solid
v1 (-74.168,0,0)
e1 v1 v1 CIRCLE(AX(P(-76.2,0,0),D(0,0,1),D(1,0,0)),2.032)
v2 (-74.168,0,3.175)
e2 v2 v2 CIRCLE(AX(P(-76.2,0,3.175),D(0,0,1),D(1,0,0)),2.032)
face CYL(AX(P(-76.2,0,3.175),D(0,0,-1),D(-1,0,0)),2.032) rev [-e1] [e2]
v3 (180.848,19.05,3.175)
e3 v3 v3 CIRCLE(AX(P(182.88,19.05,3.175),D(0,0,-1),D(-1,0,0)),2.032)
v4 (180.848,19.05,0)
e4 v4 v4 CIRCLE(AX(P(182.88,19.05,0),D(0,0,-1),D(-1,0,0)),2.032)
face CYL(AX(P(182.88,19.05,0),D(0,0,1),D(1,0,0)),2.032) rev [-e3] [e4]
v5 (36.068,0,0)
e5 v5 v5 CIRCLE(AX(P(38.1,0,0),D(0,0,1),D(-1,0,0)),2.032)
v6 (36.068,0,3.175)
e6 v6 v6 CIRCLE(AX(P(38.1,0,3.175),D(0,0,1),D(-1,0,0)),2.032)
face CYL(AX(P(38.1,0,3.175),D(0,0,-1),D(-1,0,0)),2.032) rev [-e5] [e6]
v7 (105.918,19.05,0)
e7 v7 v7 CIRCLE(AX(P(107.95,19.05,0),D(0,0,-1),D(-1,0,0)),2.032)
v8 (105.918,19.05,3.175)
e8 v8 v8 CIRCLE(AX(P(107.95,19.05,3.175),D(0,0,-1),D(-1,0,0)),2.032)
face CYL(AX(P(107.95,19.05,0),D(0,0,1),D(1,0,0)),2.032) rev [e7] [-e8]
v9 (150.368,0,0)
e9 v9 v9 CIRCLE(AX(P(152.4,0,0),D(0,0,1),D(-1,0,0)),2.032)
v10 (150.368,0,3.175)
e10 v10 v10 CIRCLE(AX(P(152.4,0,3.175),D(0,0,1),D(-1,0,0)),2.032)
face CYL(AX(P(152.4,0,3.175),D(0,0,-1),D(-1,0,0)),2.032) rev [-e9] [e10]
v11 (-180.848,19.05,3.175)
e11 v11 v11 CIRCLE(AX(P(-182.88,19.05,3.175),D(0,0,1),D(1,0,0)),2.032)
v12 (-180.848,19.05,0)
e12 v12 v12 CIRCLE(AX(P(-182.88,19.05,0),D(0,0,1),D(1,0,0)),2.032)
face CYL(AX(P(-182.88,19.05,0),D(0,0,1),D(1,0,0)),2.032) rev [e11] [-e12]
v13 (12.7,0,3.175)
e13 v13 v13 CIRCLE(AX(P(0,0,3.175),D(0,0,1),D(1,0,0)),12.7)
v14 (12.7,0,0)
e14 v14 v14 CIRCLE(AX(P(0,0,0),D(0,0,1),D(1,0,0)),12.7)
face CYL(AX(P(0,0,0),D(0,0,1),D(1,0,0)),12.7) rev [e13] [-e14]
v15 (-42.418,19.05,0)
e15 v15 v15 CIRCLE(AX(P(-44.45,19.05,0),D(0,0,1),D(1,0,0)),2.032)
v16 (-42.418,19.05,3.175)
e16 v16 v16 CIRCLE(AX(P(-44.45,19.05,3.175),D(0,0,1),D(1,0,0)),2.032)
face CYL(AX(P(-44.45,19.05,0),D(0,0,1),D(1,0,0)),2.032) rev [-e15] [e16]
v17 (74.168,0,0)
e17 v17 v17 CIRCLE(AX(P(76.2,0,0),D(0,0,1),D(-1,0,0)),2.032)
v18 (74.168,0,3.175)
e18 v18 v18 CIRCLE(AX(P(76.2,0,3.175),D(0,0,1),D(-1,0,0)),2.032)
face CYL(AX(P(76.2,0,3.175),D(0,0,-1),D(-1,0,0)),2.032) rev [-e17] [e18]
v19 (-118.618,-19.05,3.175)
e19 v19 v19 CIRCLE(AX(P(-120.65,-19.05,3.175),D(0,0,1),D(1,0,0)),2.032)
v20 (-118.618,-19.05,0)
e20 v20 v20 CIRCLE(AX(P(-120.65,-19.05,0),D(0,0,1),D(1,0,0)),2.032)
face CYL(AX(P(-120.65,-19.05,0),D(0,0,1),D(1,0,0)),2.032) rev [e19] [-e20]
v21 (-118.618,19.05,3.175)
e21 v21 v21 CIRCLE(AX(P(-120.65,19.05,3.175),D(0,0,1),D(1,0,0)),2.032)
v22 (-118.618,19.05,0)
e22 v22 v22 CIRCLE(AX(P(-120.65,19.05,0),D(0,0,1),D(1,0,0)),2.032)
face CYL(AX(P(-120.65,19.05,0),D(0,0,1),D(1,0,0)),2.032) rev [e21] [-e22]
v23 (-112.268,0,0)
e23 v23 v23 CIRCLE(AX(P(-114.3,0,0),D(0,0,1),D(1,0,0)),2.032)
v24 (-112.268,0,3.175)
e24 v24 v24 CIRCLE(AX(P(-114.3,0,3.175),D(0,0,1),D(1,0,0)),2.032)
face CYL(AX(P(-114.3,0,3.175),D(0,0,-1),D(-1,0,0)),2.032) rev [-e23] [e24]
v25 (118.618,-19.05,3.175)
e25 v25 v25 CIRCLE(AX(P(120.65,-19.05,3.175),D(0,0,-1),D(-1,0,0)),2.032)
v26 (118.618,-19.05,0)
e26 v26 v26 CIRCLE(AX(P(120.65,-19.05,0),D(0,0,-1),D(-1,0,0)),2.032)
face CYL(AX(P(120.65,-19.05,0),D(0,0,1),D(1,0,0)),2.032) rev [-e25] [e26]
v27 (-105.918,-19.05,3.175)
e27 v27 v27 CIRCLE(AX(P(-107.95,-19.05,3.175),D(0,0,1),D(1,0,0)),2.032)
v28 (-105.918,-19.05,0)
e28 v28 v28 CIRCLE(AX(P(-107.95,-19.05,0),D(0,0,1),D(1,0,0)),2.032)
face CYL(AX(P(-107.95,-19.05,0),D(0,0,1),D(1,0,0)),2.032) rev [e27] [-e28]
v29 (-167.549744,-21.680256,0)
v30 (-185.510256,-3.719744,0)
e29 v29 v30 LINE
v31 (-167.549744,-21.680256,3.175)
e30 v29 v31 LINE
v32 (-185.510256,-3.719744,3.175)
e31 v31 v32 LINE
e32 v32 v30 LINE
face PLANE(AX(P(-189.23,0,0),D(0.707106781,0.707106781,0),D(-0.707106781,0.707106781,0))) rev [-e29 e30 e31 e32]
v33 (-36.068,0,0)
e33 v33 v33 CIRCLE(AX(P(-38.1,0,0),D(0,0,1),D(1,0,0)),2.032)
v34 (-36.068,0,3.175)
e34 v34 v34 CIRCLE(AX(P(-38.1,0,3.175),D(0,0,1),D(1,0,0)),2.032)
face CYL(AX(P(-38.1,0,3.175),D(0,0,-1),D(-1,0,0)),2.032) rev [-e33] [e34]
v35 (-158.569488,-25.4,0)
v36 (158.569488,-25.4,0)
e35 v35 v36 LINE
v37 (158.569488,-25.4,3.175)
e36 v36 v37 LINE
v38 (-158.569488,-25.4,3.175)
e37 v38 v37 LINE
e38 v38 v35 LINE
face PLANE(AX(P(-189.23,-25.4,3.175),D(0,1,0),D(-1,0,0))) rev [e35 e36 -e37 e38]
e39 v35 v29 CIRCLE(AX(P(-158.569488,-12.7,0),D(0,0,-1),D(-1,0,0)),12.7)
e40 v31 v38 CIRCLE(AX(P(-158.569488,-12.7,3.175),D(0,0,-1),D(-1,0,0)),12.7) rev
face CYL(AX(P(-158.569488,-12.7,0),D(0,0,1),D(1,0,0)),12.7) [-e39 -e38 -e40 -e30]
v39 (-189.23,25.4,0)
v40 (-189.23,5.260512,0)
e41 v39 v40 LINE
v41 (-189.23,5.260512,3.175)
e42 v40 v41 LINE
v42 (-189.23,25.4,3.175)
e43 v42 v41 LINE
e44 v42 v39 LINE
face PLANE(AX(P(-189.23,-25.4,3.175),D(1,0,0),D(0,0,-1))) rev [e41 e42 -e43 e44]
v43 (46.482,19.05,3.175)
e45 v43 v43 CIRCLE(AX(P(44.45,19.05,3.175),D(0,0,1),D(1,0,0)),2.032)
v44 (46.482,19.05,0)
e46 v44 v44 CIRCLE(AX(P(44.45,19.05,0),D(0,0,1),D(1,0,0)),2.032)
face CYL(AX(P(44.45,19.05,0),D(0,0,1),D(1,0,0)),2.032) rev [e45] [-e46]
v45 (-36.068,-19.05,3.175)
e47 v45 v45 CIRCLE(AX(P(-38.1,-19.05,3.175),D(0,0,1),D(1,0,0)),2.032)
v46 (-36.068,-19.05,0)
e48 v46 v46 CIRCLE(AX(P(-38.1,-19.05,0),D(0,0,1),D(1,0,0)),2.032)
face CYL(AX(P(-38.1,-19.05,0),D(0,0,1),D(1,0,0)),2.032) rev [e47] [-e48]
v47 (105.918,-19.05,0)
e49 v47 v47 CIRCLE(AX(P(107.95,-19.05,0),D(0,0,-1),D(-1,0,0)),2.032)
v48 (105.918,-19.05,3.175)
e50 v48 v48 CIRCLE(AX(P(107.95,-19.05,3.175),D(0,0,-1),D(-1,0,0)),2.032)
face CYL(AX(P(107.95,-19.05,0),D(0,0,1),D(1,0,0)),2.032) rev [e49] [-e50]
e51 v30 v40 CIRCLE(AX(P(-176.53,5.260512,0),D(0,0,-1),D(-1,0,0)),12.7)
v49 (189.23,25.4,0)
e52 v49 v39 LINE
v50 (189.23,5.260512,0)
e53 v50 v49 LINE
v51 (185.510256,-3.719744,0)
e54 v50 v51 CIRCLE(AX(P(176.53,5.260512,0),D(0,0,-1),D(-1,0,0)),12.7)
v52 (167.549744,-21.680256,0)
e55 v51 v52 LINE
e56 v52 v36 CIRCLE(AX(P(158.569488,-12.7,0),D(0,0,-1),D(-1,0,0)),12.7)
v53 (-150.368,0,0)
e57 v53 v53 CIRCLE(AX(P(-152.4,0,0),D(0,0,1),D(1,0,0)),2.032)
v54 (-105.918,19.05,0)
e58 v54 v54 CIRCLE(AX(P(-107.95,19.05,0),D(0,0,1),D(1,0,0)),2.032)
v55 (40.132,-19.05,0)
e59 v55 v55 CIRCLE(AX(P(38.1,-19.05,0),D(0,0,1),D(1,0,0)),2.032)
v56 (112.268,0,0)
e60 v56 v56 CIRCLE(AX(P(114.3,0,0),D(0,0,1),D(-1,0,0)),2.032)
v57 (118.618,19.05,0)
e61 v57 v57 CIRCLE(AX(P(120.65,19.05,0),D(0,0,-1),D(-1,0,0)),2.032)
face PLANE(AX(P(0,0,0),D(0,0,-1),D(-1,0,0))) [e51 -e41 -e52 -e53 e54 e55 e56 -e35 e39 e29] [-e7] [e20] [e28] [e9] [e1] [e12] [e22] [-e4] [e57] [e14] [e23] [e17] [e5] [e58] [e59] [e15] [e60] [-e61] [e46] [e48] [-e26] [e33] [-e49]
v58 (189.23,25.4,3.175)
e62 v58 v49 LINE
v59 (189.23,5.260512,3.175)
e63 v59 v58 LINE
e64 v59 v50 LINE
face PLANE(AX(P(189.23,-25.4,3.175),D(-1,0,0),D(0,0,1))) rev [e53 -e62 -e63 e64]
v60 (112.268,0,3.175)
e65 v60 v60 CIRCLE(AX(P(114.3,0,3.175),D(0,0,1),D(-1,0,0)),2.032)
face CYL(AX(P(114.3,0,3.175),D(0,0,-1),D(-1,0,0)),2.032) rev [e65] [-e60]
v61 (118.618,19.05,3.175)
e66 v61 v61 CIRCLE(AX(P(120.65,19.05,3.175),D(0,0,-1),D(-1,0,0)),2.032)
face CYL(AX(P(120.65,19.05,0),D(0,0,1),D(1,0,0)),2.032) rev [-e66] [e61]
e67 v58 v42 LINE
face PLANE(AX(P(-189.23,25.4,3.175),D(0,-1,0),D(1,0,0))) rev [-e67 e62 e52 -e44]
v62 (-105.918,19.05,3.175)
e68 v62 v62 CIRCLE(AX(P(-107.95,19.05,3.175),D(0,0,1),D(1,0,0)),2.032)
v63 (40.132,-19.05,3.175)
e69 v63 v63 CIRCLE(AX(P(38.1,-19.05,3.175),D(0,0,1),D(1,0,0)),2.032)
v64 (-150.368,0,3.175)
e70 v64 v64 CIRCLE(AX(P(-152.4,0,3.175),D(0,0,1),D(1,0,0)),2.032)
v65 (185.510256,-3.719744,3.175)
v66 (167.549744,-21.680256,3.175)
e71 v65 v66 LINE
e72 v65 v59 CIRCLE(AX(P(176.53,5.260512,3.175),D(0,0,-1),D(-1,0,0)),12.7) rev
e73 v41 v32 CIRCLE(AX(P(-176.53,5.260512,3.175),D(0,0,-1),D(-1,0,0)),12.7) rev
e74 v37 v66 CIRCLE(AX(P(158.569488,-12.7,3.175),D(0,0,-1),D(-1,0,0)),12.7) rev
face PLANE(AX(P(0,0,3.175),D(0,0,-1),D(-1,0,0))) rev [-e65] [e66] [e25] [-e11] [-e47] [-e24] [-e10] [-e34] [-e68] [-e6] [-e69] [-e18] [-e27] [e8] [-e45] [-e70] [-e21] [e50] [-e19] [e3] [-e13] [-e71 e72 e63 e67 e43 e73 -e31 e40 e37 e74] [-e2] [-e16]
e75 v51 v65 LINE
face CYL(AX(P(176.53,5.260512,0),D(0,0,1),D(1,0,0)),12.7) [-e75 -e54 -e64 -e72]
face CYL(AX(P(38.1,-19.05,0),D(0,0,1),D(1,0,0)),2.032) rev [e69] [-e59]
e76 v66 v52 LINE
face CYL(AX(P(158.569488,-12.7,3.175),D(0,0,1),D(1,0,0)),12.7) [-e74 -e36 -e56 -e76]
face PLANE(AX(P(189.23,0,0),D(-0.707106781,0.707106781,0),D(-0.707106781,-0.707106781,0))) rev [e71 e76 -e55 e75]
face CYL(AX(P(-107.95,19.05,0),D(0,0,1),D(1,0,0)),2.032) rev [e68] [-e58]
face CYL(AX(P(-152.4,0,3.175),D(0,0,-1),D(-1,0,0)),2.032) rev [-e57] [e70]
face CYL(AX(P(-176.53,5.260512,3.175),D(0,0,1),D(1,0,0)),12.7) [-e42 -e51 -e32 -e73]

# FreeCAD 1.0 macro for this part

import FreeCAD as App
import Part
import Sketcher
Q = App.Units.Quantity


def edges_at(feature, points):
    """Names of the edges that pass closest to the given points."""
    edges = feature.Shape.Edges
    near = lambda p: min(range(len(edges)), key=lambda i: edges[i].distToShape(Part.Vertex(*p))[0])
    return sorted({f"Edge{near(p) + 1}" for p in points})

doc = App.newDocument("Part")
body = doc.addObject("PartDesign::Body", "Body")

# Sketch on XY plane
sketch1 = body.newObject("Sketcher::SketchObject", "Sketch")
sketch1.AttachmentSupport = (doc.getObject("XY_Plane"), [""])
sketch1.MapMode = "FlatFace"
sketch1.addGeometry([
    Part.LineSegment(App.Vector(-189.2, 25.4, 0), App.Vector(-189.2, -25.4, 0)),  # 0
    Part.LineSegment(App.Vector(-189.2, -25.4, 0), App.Vector(189.2, -25.4, 0)),  # 1
    Part.LineSegment(App.Vector(189.2, -25.4, 0), App.Vector(189.2, 25.4, 0)),  # 2
    Part.LineSegment(App.Vector(189.2, 25.4, 0), App.Vector(-189.2, 25.4, 0)),  # 3
    Part.Circle(App.Vector(-152.4, 0, 0), App.Vector(0, 0, 1), 2),  # 4
    Part.Circle(App.Vector(-114.3, 0, 0), App.Vector(0, 0, 1), 2),  # 5
    Part.Circle(App.Vector(-76.2, 0, 0), App.Vector(0, 0, 1), 2),  # 6
    Part.Circle(App.Vector(-38.1, 0, 0), App.Vector(0, 0, 1), 2),  # 7
    Part.Circle(App.Vector(0, 0, 0), App.Vector(0, 0, 1), 2),  # 8
    Part.Circle(App.Vector(38.1, 0, 0), App.Vector(0, 0, 1), 2),  # 9
    Part.Circle(App.Vector(76.2, 0, 0), App.Vector(0, 0, 1), 2),  # 10
    Part.Circle(App.Vector(114.3, 0, 0), App.Vector(0, 0, 1), 2),  # 11
    Part.Circle(App.Vector(152.4, 0, 0), App.Vector(0, 0, 1), 2),  # 12
], False)
sketch1.addConstraint([
    Sketcher.Constraint("Coincident", 0, 2, 1, 1),
    Sketcher.Constraint("Coincident", 1, 2, 2, 1),
    Sketcher.Constraint("Coincident", 2, 2, 3, 1),
    Sketcher.Constraint("Coincident", 3, 2, 0, 1),
    Sketcher.Constraint("Vertical", 0),
    Sketcher.Constraint("Horizontal", 1),
    Sketcher.Constraint("Vertical", 2),
    Sketcher.Constraint("Horizontal", 3),
    Sketcher.Constraint("Coincident", 8, 3, -1, 1),
    Sketcher.Constraint("Equal", 4, 5),
    Sketcher.Constraint("Equal", 5, 6),
    Sketcher.Constraint("Equal", 6, 7),
    Sketcher.Constraint("Equal", 7, 8),
    Sketcher.Constraint("Equal", 8, 9),
    Sketcher.Constraint("Equal", 9, 10),
    Sketcher.Constraint("Equal", 10, 11),
    Sketcher.Constraint("Equal", 11, 12),
    Sketcher.Constraint("Symmetric", 7, 3, 9, 3, -1, 1),
    Sketcher.Constraint("Symmetric", 6, 3, 10, 3, -1, 1),
    Sketcher.Constraint("Symmetric", 5, 3, 11, 3, -1, 1),
    Sketcher.Constraint("Symmetric", 4, 3, 12, 3, -1, 1),
    Sketcher.Constraint("Symmetric", 0, 2, 2, 2, -1, 1),
    Sketcher.Constraint("PointOnObject", 4, 3, -1),
    Sketcher.Constraint("PointOnObject", 5, 3, -1),
    Sketcher.Constraint("PointOnObject", 6, 3, -1),
    Sketcher.Constraint("PointOnObject", 7, 3, -1),
    Sketcher.Constraint("Diameter", 4, Q("0.16 in")),
    Sketcher.Constraint("DistanceY", 0, 2, 0, 1, Q("2 in")),
    Sketcher.Constraint("DistanceX", 1, 1, 1, 2, Q("14.9 in")),
    Sketcher.Constraint("DistanceX", 4, 3, -1, 1, Q("6 in")),
    Sketcher.Constraint("DistanceX", 6, 3, -1, 1, Q("3 in")),
    Sketcher.Constraint("DistanceX", 5, 3, 7, 3, Q("3 in")),
    Sketcher.Constraint("DistanceX", 7, 3, 9, 3, Q("3 in")),
])
pad1 = body.newObject("PartDesign::Pad", "Pad")
pad1.Profile = sketch1
pad1.Length = Q("0.125 in")

# Sketch on XY plane
sketch2 = body.newObject("Sketcher::SketchObject", "Sketch001")
sketch2.AttachmentSupport = (doc.getObject("XY_Plane"), [""])
sketch2.MapMode = "FlatFace"
sketch2.AttachmentOffset = App.Placement(App.Vector(0, 0, 0.125 * 25.4), App.Rotation())
sketch2.addGeometry(Part.Circle(App.Vector(0, 0, 0), App.Vector(0, 0, 1), 13), False)
sketch2.addConstraint([
    Sketcher.Constraint("Coincident", 0, 3, -1, 1),
    Sketcher.Constraint("Diameter", 0, Q("1 in")),
])
pocket1 = body.newObject("PartDesign::Pocket", "Pocket")
pocket1.Profile = sketch2
pocket1.Type = "ThroughAll"

# Sketch on XY plane
sketch3 = body.newObject("Sketcher::SketchObject", "Sketch002")
sketch3.AttachmentSupport = (doc.getObject("XY_Plane"), [""])
sketch3.MapMode = "FlatFace"
sketch3.AttachmentOffset = App.Placement(App.Vector(0, 0, 0.125 * 25.4), App.Rotation())
sketch3.addGeometry([
    Part.Circle(App.Vector(-38.1, -19.1, 0), App.Vector(0, 0, 1), 2),
    Part.Circle(App.Vector(-44.5, 19.1, 0), App.Vector(0, 0, 1), 2),
    Part.Circle(App.Vector(44.5, 19.1, 0), App.Vector(0, 0, 1), 2),
    Part.Circle(App.Vector(38.1, -19.1, 0), App.Vector(0, 0, 1), 2),
], False)
sketch3.addConstraint([
    Sketcher.Constraint("Equal", 0, 1),
    Sketcher.Constraint("Equal", 1, 2),
    Sketcher.Constraint("Equal", 2, 3),
    Sketcher.Constraint("Symmetric", 1, 3, 2, 3, -2),
    Sketcher.Constraint("Symmetric", 0, 3, 3, 3, -2),
    Sketcher.Constraint("Diameter", 0, Q("0.16 in")),
    Sketcher.Constraint("DistanceX", 0, 3, 3, 3, Q("3 in")),
    Sketcher.Constraint("DistanceY", 0, 3, 1, 3, Q("1.5 in")),
    Sketcher.Constraint("DistanceX", 1, 3, 2, 3, Q("3.5 in")),
    Sketcher.Constraint("DistanceY", 0, 3, -1, 1, Q("0.75 in")),
])
pocket2 = body.newObject("PartDesign::Pocket", "Pocket001")
pocket2.Profile = sketch3
pocket2.Type = "ThroughAll"

# Sketch on XY plane
sketch4 = body.newObject("Sketcher::SketchObject", "Sketch003")
sketch4.AttachmentSupport = (doc.getObject("XY_Plane"), [""])
sketch4.MapMode = "FlatFace"
sketch4.AttachmentOffset = App.Placement(App.Vector(0, 0, 0.125 * 25.4), App.Rotation())
sketch4.addGeometry([
    Part.Circle(App.Vector(-108, -19.1, 0), App.Vector(0, 0, 1), 2),
    Part.Circle(App.Vector(-120.7, -19.1, 0), App.Vector(0, 0, 1), 2),
    Part.Circle(App.Vector(-120.7, 19.1, 0), App.Vector(0, 0, 1), 2),
    Part.Circle(App.Vector(-108, 19.1, 0), App.Vector(0, 0, 1), 2),
], False)
sketch4.addConstraint([
    Sketcher.Constraint("Equal", 0, 1),
    Sketcher.Constraint("Equal", 1, 2),
    Sketcher.Constraint("Equal", 2, 3),
    Sketcher.Constraint("Symmetric", 1, 3, 2, 3, -1),
    Sketcher.Constraint("Symmetric", 0, 3, 3, 3, -1),
    Sketcher.Constraint("Horizontal", 0, 3, 1, 3),
    Sketcher.Constraint("Diameter", 0, Q("0.16 in")),
    Sketcher.Constraint("DistanceX", 1, 3, 0, 3, Q("0.5 in")),
    Sketcher.Constraint("DistanceY", 1, 3, 2, 3, Q("1.5 in")),
    Sketcher.Constraint("DistanceX", 0, 3, -1, 1, Q("4.25 in")),
])
pocket3 = body.newObject("PartDesign::Pocket", "Pocket002")
pocket3.Profile = sketch4
pocket3.Type = "ThroughAll"

# Sketch on XY plane
sketch5 = body.newObject("Sketcher::SketchObject", "Sketch004")
sketch5.AttachmentSupport = (doc.getObject("XY_Plane"), [""])
sketch5.MapMode = "FlatFace"
sketch5.AttachmentOffset = App.Placement(App.Vector(0, 0, 0.125 * 25.4), App.Rotation())
sketch5.addGeometry([
    Part.Circle(App.Vector(-182.9, 19.1, 0), App.Vector(0, 0, 1), 2),
    Part.Circle(App.Vector(-182.9, -19.1, 0), App.Vector(0, 0, 1), 2),
], False)
sketch5.addConstraint([
    Sketcher.Constraint("Equal", 0, 1),
    Sketcher.Constraint("Symmetric", 0, 3, 1, 3, -1),
    Sketcher.Constraint("Diameter", 0, Q("0.16 in")),
    Sketcher.Constraint("DistanceX", 0, 3, -1, 1, Q("7.2 in")),
    Sketcher.Constraint("DistanceY", 1, 3, 0, 3, Q("1.5 in")),
])
pocket4 = body.newObject("PartDesign::Pocket", "Pocket003")
pocket4.Profile = sketch5
pocket4.Type = "ThroughAll"
doc.recompute()

mirrored = body.newObject("PartDesign::Mirrored", "Mirrored")
mirrored.Originals = [pocket3, pocket4]
mirrored.MirrorPlane = (doc.getObject("YZ_Plane"), [""])
body.Tip = mirrored

# Sketch on XY plane
sketch6 = body.newObject("Sketcher::SketchObject", "Sketch005")
sketch6.AttachmentSupport = (doc.getObject("XY_Plane"), [""])
sketch6.MapMode = "FlatFace"
sketch6.AttachmentOffset = App.Placement(App.Vector(0, 0, 0.125 * 25.4), App.Rotation())
sketch6.addGeometry([
    Part.LineSegment(App.Vector(-164, -25, 0), App.Vector(-189, 0, 0)),  # 0
    Part.LineSegment(App.Vector(-189, 0, 0), App.Vector(-189, -25, 0)),  # 1
    Part.LineSegment(App.Vector(-189, -25, 0), App.Vector(-164, -25, 0)),  # 2
    Part.LineSegment(App.Vector(189, -25, 0), App.Vector(189, 0, 0)),  # 3
    Part.LineSegment(App.Vector(189, 0, 0), App.Vector(164, -25, 0)),  # 4
    Part.LineSegment(App.Vector(164, -25, 0), App.Vector(189, -25, 0)),  # 5
], False)
sketch6.addConstraint([
    Sketcher.Constraint("Coincident", 0, 2, 1, 1),
    Sketcher.Constraint("Coincident", 1, 2, 2, 1),
    Sketcher.Constraint("Coincident", 2, 2, 0, 1),
    Sketcher.Constraint("Coincident", 3, 2, 4, 1),
    Sketcher.Constraint("Coincident", 4, 2, 5, 1),
    Sketcher.Constraint("Coincident", 5, 2, 3, 1),
    Sketcher.Constraint("Vertical", 1),
    Sketcher.Constraint("Horizontal", 2),
    Sketcher.Constraint("Vertical", 3),
    Sketcher.Constraint("Horizontal", 5),
    Sketcher.Constraint("Symmetric", 0, 2, 3, 2, -1, 1),
    Sketcher.Constraint("Symmetric", 2, 2, 4, 2, -2),
    Sketcher.Constraint("PointOnObject", 0, 2, -1),
    Sketcher.Constraint("Perpendicular", 0, 4),
    Sketcher.Constraint("DistanceX", 2, 1, 2, 2, Q("1 in")),
    Sketcher.Constraint("DistanceX", 2, 2, 3, 2, Q("13.9 in")),
])
pocket5 = body.newObject("PartDesign::Pocket", "Pocket004")
pocket5.Profile = sketch6
pocket5.Type = "ThroughAll"
doc.recompute()

fillet = body.newObject("PartDesign::Fillet", "Fillet")
fillet.Base = (pocket5, edges_at(pocket5, [
    (-189.23, 0, 1.587),
    (-163.83, -25.4, 1.587),
    (163.83, -25.4, 1.587),
    (189.23, 0, 1.587),
]))
fillet.Radius = Q("0.5 in")

doc.recompute()
